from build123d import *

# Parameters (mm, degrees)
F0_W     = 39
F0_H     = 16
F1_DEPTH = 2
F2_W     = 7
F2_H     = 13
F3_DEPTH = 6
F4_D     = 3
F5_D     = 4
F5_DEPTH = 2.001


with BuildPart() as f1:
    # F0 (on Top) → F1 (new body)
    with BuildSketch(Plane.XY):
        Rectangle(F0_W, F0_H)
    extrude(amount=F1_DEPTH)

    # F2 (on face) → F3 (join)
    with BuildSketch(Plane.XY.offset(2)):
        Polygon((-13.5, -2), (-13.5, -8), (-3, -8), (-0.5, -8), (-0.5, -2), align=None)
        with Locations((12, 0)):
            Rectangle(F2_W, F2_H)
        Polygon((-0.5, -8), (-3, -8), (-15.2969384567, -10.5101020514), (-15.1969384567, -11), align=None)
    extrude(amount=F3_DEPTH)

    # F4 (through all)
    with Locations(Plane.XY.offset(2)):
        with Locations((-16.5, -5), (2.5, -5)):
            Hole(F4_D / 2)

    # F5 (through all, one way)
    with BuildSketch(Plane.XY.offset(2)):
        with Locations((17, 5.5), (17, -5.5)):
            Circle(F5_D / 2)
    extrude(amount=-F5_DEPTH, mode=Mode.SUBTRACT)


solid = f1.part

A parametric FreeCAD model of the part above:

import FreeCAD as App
import Part
import Sketcher

V = App.Vector


def add_polygon(sketch, points):
    """Adds a closed chain of lines whose ends are joined by coincident constraints."""
    first, n = sketch.GeometryCount, len(points)
    for a, b in zip(points, points[1:] + points[:1]):
        sketch.addGeometry(Part.LineSegment(App.Vector(*a, 0), App.Vector(*b, 0)), False)
    for i in range(n):
        sketch.addConstraint(Sketcher.Constraint("Coincident", first + i, 2, first + (i + 1) % n, 1))

doc = App.newDocument("Part")
params = doc.addObject("Spreadsheet::Sheet", "Params")
for row, (alias, value) in enumerate([
    ("sketch1_width", "39 mm"),
    ("sketch1_height", "16 mm"),
    ("pad1_length", "2 mm"),
    ("sketch2_width", "13 mm"),
    ("sketch2_width2", "7 mm"),
    ("sketch2_height", "6 mm"),
    ("sketch2_length", "15 mm"),
    ("sketch2_width3", "10.5 mm"),
    ("pad2_length", "6 mm"),
    ("sketch3_diameter", "3 mm"),
    ("hole_diameter", "3 mm"),
    ("sketch4_diameter", "4 mm"),
], start=1):
    params.set(f"A{row}", alias)
    params.set(f"B{row}", "=" + value)
    params.setAlias(f"B{row}", alias)

body = doc.addObject("PartDesign::Body", "Body")

# Sketch on XY plane
sketch1 = body.newObject("Sketcher::SketchObject", "Sketch")
sketch1.AttachmentSupport = (doc.getObject("XY_Plane"), [""])
sketch1.MapMode = "FlatFace"
add_polygon(sketch1, [(-20, 8), (-20, -8), (20, -8), (20, 8)])  # lines 0-3
sketch1.addConstraint([
    Sketcher.Constraint("Vertical", 0),
    Sketcher.Constraint("Horizontal", 1),
    Sketcher.Constraint("Vertical", 2),
    Sketcher.Constraint("Horizontal", 3),
    Sketcher.Constraint("Symmetric", 0, 2, 2, 2, -1, 1),
    Sketcher.Constraint("DistanceX", 1, 1, 1, 2, 39.0),
    Sketcher.Constraint("DistanceY", 0, 2, 0, 1, 16.0),
])
sketch1.setExpression("Constraints[9]", "Params.sketch1_width")
sketch1.setExpression("Constraints[10]", "Params.sketch1_height")
pad1 = body.newObject("PartDesign::Pad", "Pad")
pad1.Profile = sketch1
pad1.setExpression("Length", "Params.pad1_length")

# Sketch on XY plane
sketch2 = body.newObject("Sketcher::SketchObject", "Sketch001")
sketch2.AttachmentSupport = (doc.getObject("XY_Plane"), [""])
sketch2.MapMode = "FlatFace"
sketch2.AttachmentOffset = App.Placement(V(0, 0, 2), App.Rotation())
add_polygon(sketch2, [(-13.5, -2), (-13.5, -8), (-3, -8), (-15.3, -10.5), (-15.2, -11), (-0.5, -8), (-0.5, -2)])  # lines 0-6
add_polygon(sketch2, [(8.5, 6.5), (8.5, -6.5), (15.5, -6.5), (15.5, 6.5)])  # lines 7-10
sketch2.addConstraint([
    Sketcher.Constraint("Vertical", 0),
    Sketcher.Constraint("Horizontal", 1),
    Sketcher.Constraint("Vertical", 5),
    Sketcher.Constraint("Horizontal", 6),
    Sketcher.Constraint("Vertical", 7),
    Sketcher.Constraint("Horizontal", 8),
    Sketcher.Constraint("Vertical", 9),
    Sketcher.Constraint("Horizontal", 10),
    Sketcher.Constraint("Perpendicular", 2, 3),
    Sketcher.Constraint("Perpendicular", 3, 4),
    Sketcher.Constraint("Horizontal", 1, 2, 4, 2),
    Sketcher.Constraint("Equal", 6, 7),
    Sketcher.Constraint("DistanceX", 6, 2, 6, 1, 13.0),
    Sketcher.Constraint("DistanceX", 8, 1, 8, 2, 7.0),
    Sketcher.Constraint("DistanceY", 0, 2, 0, 1, 6.0),
    Sketcher.Constraint("Distance", 4, 15.0),
    Sketcher.Constraint("DistanceX", 1, 1, 1, 2, 10.5),
    Sketcher.Constraint("DistanceY", 0, 2, -1, 1, 8.0),
    Sketcher.Constraint("DistanceX", 1, 2, -1, 1, 3.0),
    Sketcher.Constraint("DistanceY", 3, 2, -1, 1, 11.0),
    Sketcher.Constraint("DistanceX", 4, 2, 7, 2, 9.0),
    Sketcher.Constraint("DistanceY", 7, 2, -1, 1, 6.5),
])
sketch2.setExpression("Constraints[23]", "Params.sketch2_width")
sketch2.setExpression("Constraints[24]", "Params.sketch2_width2")
sketch2.setExpression("Constraints[25]", "Params.sketch2_height")
sketch2.setExpression("Constraints[26]", "Params.sketch2_length")
sketch2.setExpression("Constraints[27]", "Params.sketch2_width3")
pad2 = body.newObject("PartDesign::Pad", "Pad001")
pad2.Profile = sketch2
pad2.setExpression("Length", "Params.pad2_length")

# Sketch on XY plane
sketch3 = body.newObject("Sketcher::SketchObject", "Sketch002")
sketch3.AttachmentSupport = (doc.getObject("XY_Plane"), [""])
sketch3.MapMode = "FlatFace"
sketch3.AttachmentOffset = App.Placement(V(0, 0, 2), App.Rotation())
sketch3.addGeometry([
    Part.Circle(V(-16.5, -5, 0), V(0, 0, 1), 1.5),
    Part.Circle(V(2.5, -5, 0), V(0, 0, 1), 1.5),
], False)
sketch3.addConstraint([
    Sketcher.Constraint("Equal", 0, 1),
    Sketcher.Constraint("Horizontal", 0, 3, 1, 3),
    Sketcher.Constraint("Diameter", 0, 3.0),
    Sketcher.Constraint("DistanceY", 0, 3, -1, 1, 5.0),
    Sketcher.Constraint("DistanceX", 0, 3, 1, 3, 19.0),
    Sketcher.Constraint("DistanceX", 0, 3, -1, 1, 16.5),
])
sketch3.setExpression("Constraints[2]", "Params.sketch3_diameter")
doc.recompute()
hole = body.newObject("PartDesign::Hole", "Hole")
hole.Profile = sketch3
hole.ThreadType = "None"
hole.setExpression("Diameter", "Params.hole_diameter")
hole.DepthType = "ThroughAll"

# Sketch on XY plane
sketch4 = body.newObject("Sketcher::SketchObject", "Sketch003")
sketch4.AttachmentSupport = (doc.getObject("XY_Plane"), [""])
sketch4.MapMode = "FlatFace"
sketch4.AttachmentOffset = App.Placement(V(0, 0, 2), App.Rotation())
sketch4.addGeometry([
    Part.Circle(V(17, -5.5, 0), V(0, 0, 1), 2),
    Part.Circle(V(17, 5.5, 0), V(0, 0, 1), 2),
], False)
sketch4.addConstraint([
    Sketcher.Constraint("Equal", 0, 1),
    Sketcher.Constraint("Symmetric", 0, 3, 1, 3, -1),
    Sketcher.Constraint("Diameter", 0, 4.0),
    Sketcher.Constraint("DistanceX", -1, 1, 0, 3, 17.0),
    Sketcher.Constraint("DistanceY", 0, 3, 1, 3, 11.0),
])
sketch4.setExpression("Constraints[2]", "Params.sketch4_diameter")
pocket1 = body.newObject("PartDesign::Pocket", "Pocket")
pocket1.Profile = sketch4
pocket1.Type = "ThroughAll"

doc.recompute()
